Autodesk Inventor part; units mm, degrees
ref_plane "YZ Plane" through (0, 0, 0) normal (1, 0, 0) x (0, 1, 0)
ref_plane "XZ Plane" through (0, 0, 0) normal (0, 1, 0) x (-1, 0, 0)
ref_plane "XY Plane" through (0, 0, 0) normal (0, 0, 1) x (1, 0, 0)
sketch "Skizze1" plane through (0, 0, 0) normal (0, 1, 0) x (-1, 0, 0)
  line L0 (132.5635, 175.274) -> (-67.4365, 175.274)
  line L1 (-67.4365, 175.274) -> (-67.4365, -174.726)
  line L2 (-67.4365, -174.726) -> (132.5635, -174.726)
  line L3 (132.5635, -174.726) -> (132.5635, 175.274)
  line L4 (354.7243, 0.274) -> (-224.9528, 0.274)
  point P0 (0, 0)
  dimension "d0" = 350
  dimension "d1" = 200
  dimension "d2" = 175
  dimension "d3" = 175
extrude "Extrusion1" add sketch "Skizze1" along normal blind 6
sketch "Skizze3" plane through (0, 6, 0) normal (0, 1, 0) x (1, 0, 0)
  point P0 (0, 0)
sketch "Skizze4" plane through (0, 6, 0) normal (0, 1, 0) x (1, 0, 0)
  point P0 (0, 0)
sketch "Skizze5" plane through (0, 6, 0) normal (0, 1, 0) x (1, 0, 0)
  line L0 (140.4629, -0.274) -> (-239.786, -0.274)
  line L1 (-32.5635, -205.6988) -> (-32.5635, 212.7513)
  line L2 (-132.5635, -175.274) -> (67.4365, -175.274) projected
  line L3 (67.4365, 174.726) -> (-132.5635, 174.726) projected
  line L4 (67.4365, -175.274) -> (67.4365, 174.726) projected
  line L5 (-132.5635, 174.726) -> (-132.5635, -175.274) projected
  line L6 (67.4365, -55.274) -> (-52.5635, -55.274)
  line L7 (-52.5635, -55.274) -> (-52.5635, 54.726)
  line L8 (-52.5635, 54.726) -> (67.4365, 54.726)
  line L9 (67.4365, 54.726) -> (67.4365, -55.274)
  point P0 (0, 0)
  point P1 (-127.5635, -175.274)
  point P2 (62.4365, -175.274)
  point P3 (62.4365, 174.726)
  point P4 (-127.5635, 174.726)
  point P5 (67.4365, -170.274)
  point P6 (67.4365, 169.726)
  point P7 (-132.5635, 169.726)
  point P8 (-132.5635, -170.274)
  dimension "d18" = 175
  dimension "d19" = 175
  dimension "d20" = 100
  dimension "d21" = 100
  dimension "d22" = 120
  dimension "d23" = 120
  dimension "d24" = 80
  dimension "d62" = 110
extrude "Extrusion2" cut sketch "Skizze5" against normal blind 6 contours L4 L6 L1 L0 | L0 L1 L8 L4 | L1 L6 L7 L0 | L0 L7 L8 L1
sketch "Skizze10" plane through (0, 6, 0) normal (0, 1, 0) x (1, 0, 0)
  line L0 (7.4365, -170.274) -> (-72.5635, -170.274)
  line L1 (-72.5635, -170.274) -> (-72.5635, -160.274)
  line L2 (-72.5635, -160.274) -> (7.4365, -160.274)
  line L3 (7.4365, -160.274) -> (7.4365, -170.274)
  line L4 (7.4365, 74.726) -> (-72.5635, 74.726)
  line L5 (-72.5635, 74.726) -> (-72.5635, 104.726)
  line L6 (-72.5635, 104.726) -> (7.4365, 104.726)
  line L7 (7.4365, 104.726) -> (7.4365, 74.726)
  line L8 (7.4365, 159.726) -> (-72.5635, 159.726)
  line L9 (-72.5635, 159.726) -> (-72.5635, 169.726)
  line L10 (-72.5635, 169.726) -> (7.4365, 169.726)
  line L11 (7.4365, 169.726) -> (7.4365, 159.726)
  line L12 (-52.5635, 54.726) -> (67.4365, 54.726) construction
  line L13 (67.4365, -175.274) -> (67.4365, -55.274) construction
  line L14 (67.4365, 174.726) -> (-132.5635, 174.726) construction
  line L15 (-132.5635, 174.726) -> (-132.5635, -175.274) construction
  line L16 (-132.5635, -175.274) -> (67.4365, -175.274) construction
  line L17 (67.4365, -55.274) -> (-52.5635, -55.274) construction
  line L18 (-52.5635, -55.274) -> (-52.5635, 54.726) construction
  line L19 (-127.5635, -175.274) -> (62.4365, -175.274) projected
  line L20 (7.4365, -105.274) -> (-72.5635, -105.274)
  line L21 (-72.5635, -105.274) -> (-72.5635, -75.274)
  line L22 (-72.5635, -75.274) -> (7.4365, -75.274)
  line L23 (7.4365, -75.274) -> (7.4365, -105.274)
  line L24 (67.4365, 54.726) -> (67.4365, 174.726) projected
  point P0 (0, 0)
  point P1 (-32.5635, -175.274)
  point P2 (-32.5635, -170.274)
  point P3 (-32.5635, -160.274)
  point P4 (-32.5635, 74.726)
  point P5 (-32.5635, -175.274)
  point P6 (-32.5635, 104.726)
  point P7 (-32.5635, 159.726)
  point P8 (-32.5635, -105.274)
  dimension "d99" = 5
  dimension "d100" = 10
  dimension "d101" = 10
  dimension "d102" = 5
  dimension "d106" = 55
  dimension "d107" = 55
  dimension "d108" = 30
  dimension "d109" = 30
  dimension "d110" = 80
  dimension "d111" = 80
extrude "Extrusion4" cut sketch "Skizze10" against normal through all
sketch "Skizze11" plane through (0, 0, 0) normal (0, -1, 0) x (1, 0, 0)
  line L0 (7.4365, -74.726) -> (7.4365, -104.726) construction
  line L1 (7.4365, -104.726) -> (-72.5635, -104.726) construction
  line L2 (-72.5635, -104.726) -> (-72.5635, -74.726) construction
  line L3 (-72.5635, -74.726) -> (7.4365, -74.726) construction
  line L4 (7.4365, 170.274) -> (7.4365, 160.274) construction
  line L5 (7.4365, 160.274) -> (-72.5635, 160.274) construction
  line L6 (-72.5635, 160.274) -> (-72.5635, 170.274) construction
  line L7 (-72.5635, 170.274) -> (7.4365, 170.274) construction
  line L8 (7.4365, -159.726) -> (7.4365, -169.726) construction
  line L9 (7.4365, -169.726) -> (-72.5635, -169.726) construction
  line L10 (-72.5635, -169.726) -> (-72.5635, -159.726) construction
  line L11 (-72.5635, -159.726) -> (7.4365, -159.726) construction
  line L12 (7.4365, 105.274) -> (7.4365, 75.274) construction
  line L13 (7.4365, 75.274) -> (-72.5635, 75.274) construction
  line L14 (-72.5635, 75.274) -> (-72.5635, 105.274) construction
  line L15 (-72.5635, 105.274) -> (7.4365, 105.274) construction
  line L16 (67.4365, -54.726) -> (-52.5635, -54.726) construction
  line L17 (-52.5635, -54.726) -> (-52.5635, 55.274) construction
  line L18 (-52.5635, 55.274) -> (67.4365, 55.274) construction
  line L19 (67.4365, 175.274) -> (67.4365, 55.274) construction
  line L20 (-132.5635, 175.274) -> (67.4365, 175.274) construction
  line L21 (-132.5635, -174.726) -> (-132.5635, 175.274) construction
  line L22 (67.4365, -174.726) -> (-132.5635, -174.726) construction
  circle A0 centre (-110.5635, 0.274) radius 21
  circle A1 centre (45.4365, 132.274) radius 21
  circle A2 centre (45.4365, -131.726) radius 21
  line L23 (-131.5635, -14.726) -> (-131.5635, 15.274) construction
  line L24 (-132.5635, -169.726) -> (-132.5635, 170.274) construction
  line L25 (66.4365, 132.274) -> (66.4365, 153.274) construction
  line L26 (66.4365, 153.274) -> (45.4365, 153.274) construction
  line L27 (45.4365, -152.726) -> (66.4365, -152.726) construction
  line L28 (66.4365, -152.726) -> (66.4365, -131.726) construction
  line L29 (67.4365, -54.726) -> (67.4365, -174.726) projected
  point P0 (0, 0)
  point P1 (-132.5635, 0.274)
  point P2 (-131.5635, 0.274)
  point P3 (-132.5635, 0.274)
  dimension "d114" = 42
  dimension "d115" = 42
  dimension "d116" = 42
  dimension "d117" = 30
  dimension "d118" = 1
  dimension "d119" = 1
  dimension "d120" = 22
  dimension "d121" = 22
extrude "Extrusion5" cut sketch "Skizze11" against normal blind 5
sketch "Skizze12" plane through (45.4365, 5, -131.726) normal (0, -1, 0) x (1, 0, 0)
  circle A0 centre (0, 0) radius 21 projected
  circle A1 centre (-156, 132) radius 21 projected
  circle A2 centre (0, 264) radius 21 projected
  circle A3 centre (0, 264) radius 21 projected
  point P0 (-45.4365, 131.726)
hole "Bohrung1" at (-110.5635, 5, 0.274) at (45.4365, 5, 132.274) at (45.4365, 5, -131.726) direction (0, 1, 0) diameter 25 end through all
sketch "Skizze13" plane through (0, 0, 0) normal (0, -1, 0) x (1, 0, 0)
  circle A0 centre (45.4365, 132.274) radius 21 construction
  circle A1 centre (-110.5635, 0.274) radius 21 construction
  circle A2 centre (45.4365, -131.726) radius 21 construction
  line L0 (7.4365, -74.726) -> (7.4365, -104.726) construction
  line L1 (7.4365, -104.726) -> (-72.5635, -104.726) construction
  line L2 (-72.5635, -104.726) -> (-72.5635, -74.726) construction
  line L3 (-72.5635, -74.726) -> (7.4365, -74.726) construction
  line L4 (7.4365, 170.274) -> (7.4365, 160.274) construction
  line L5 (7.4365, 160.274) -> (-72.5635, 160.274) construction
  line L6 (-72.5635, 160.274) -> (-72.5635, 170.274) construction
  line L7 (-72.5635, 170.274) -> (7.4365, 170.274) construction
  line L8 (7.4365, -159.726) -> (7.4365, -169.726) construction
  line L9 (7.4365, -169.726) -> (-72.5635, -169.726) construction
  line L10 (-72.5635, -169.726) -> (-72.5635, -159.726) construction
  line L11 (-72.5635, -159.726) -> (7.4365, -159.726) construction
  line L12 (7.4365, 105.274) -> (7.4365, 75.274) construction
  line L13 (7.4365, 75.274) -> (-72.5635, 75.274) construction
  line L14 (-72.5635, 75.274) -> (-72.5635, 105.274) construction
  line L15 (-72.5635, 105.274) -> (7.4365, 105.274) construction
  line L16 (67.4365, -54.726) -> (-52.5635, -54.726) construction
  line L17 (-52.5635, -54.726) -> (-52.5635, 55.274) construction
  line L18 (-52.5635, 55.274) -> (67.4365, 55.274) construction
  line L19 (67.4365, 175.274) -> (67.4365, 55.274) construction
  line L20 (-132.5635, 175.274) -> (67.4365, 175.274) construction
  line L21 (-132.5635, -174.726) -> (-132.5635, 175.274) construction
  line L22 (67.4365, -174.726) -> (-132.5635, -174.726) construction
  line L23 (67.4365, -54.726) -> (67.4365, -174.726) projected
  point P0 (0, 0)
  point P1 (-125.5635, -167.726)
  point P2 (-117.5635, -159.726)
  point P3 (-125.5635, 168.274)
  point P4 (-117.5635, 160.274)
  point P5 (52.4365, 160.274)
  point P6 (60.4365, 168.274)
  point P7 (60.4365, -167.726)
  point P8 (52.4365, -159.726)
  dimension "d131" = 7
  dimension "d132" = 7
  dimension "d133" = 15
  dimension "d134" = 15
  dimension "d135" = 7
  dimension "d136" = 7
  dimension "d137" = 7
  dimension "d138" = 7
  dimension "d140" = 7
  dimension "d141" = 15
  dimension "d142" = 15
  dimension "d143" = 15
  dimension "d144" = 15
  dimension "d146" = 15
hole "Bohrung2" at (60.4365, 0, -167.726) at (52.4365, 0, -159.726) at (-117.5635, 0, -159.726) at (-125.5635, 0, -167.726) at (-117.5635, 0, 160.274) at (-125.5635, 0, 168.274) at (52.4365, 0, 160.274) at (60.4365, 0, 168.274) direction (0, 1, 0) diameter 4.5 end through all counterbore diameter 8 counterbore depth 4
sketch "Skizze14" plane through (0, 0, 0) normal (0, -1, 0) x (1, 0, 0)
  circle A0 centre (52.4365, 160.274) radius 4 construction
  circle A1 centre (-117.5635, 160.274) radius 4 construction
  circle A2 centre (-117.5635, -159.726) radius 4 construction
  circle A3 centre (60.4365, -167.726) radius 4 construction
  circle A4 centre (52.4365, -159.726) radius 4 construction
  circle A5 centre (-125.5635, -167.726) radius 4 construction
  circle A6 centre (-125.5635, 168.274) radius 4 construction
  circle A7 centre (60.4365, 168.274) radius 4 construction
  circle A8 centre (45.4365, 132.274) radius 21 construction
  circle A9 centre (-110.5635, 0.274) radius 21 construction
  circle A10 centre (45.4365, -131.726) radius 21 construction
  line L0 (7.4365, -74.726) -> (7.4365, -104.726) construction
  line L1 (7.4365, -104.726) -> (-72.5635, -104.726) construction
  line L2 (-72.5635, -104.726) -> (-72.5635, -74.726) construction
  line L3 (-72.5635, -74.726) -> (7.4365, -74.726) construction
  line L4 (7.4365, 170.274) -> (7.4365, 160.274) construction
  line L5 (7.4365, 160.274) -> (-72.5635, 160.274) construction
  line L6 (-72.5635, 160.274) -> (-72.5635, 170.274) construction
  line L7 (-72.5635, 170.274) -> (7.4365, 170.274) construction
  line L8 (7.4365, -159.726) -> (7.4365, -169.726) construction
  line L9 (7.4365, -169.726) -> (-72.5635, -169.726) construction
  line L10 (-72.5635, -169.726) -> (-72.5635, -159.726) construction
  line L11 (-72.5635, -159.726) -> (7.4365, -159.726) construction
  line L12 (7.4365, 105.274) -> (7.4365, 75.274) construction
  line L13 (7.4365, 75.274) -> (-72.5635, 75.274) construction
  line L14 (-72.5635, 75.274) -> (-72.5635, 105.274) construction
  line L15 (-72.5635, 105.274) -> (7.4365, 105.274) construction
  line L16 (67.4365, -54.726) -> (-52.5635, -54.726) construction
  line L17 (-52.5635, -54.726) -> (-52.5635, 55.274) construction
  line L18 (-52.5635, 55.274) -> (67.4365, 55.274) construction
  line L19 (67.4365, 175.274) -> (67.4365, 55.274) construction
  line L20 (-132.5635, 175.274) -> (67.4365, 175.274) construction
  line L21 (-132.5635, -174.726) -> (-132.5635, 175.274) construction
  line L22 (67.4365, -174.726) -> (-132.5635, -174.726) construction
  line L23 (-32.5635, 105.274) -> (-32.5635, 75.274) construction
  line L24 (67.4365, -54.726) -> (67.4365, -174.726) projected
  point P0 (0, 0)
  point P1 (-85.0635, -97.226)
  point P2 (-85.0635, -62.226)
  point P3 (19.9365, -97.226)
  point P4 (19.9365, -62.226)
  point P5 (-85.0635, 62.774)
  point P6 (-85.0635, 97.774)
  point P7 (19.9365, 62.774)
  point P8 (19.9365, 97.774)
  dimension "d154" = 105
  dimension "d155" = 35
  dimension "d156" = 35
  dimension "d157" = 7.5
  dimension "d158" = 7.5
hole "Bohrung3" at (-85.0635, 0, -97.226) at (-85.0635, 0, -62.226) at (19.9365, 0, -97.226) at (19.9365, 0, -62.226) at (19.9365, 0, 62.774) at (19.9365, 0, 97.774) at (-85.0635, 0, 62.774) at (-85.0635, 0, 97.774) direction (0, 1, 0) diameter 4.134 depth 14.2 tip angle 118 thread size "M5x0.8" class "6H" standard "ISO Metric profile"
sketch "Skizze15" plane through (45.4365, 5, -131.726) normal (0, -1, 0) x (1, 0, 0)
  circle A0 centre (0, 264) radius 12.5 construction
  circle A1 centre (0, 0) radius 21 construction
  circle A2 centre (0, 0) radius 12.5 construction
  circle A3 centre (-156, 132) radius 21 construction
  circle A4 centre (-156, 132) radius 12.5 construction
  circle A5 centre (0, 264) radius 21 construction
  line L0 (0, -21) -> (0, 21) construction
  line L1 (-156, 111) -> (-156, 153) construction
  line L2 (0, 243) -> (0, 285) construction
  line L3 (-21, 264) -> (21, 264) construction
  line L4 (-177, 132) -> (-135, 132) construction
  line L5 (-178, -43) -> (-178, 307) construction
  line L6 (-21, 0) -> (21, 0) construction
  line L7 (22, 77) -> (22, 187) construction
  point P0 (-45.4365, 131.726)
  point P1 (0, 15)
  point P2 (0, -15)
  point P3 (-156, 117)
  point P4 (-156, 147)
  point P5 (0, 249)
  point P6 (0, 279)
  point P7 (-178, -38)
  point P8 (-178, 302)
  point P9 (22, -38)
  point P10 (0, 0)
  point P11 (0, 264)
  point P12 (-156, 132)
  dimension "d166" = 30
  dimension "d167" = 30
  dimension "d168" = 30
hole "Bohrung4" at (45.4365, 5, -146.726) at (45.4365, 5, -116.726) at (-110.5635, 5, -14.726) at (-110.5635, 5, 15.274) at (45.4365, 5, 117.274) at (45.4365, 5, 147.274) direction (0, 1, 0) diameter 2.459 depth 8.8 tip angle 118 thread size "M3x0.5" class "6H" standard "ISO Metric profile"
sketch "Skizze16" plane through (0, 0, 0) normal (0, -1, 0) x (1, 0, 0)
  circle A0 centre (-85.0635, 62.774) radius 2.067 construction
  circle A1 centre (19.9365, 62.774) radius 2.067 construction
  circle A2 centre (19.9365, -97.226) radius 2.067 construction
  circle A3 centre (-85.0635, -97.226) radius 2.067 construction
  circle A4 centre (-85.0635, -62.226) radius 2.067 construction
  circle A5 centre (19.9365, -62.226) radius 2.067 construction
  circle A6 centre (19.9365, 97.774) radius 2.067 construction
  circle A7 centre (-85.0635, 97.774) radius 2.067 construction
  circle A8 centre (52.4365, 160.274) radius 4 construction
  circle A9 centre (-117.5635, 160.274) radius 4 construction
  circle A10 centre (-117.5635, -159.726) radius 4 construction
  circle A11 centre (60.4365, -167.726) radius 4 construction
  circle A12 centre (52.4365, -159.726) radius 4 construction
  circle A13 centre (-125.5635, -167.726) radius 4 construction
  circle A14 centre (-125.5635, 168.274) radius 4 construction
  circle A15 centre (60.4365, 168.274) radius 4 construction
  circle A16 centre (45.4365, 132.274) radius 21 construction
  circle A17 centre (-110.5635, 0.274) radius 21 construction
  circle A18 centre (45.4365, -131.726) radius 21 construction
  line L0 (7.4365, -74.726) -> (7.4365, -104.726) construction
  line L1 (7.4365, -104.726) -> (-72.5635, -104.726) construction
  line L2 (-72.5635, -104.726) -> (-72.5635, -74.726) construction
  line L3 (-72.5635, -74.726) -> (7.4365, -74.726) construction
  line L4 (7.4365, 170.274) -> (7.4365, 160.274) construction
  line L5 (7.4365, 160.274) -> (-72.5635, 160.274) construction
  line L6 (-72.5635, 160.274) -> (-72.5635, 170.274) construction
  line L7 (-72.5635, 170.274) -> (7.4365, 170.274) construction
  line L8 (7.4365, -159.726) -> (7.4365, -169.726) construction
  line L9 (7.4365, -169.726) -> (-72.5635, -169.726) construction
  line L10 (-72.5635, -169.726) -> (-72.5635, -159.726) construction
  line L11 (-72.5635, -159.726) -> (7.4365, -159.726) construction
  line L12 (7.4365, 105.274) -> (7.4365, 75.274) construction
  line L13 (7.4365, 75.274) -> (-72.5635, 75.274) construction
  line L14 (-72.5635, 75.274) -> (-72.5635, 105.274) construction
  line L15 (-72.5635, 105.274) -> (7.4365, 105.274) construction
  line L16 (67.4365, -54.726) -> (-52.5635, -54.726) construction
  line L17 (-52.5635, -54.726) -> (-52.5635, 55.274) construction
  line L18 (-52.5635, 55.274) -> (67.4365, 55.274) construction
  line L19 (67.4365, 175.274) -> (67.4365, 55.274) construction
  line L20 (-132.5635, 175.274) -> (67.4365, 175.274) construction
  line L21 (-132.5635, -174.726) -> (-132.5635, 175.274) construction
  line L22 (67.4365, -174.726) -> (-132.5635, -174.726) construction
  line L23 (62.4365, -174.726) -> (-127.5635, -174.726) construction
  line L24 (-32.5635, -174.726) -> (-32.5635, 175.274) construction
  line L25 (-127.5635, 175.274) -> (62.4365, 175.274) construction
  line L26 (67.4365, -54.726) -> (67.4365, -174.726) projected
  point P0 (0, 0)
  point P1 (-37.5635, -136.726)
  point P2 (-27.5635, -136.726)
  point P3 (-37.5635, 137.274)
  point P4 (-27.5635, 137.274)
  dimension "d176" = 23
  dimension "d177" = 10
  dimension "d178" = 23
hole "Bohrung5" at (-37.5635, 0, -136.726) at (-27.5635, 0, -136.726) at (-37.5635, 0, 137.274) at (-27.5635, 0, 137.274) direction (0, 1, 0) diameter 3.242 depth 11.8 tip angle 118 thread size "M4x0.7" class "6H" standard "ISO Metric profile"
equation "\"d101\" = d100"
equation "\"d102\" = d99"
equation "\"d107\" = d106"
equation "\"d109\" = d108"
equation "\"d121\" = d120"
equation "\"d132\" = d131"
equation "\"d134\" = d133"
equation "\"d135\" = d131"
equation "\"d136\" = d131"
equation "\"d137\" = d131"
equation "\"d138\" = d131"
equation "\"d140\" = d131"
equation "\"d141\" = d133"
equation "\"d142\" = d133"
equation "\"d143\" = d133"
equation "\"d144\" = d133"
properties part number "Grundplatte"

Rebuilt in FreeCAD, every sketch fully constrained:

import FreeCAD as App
import Part
import Sketcher

V = App.Vector
Q = App.Units.Quantity

doc = App.newDocument("Part")
body = doc.addObject("PartDesign::Body", "Body")

sketch1 = body.newObject("Sketcher::SketchObject", "Sketch")
sketch1.AttachmentSupport = (doc.getObject("XZ_Plane"), [""])
sketch1.MapMode = "FlatFace"
sketch1.addGeometry([
    Part.LineSegment(V(-132.5635, 175.274, 0), V(67.4365, 175.274, 0)),
    Part.LineSegment(V(67.4365, 175.274, 0), V(67.4365, -174.726, 0)),
    Part.LineSegment(V(67.4365, -174.726, 0), V(-132.5635, -174.726, 0)),
    Part.LineSegment(V(-132.5635, -174.726, 0), V(-132.5635, 175.274, 0)),
], False)
sketch1.addConstraint([
    Sketcher.Constraint("Coincident", 0, 2, 1, 1),
    Sketcher.Constraint("Coincident", 1, 2, 2, 1),
    Sketcher.Constraint("Coincident", 2, 2, 3, 1),
    Sketcher.Constraint("Coincident", 3, 2, 0, 1),
    Sketcher.Constraint("Horizontal", 0),
    Sketcher.Constraint("Vertical", 1),
    Sketcher.Constraint("Horizontal", 2),
    Sketcher.Constraint("Vertical", 3),
    Sketcher.Constraint("DistanceX", 0, 1, 0, 2, Q("200 mm")),
    Sketcher.Constraint("DistanceY", 1, 2, 1, 1, Q("350 mm")),
    Sketcher.Constraint("DistanceY", -1, 1, 0, 2, Q("175.274 mm")),
    Sketcher.Constraint("DistanceX", -1, 1, 0, 2, Q("67.4365 mm")),
])
pad1 = body.newObject("PartDesign::Pad", "Pad")
pad1.Profile = sketch1
pad1.Length = 6
pad1.Reversed = True

sketch2 = body.newObject("Sketcher::SketchObject", "Sketch001")
sketch2.AttachmentSupport = (doc.getObject("XZ_Plane"), [""])
sketch2.MapMode = "FlatFace"
sketch2.AttachmentOffset = App.Placement(V(0, 0, -6), App.Rotation())
sketch2.addGeometry([
    Part.LineSegment(V(67.4365, 55.274, 0), V(67.4365, -54.726, 0)),
    Part.LineSegment(V(67.4365, -54.726, 0), V(-52.5635, -54.726, 0)),
    Part.LineSegment(V(-52.5635, -54.726, 0), V(-52.5635, 55.274, 0)),
    Part.LineSegment(V(-52.5635, 55.274, 0), V(67.4365, 55.274, 0)),
], False)
sketch2.addConstraint([
    Sketcher.Constraint("Coincident", 0, 2, 1, 1),
    Sketcher.Constraint("Coincident", 1, 2, 2, 1),
    Sketcher.Constraint("Coincident", 2, 2, 3, 1),
    Sketcher.Constraint("Coincident", 3, 2, 0, 1),
    Sketcher.Constraint("Vertical", 0),
    Sketcher.Constraint("Horizontal", 1),
    Sketcher.Constraint("Vertical", 2),
    Sketcher.Constraint("Horizontal", 3),
    Sketcher.Constraint("DistanceX", 1, 2, 1, 1, Q("120 mm")),
    Sketcher.Constraint("DistanceY", 0, 2, 0, 1, Q("110 mm")),
    Sketcher.Constraint("DistanceY", 0, 2, -1, 1, Q("54.726 mm")),
    Sketcher.Constraint("DistanceX", -1, 1, 0, 2, Q("67.4365 mm")),
])
pocket1 = body.newObject("PartDesign::Pocket", "Pocket")
pocket1.Profile = sketch2
pocket1.Length = 6
pocket1.Reversed = True

sketch3 = body.newObject("Sketcher::SketchObject", "Sketch002")
sketch3.AttachmentSupport = (doc.getObject("XZ_Plane"), [""])
sketch3.MapMode = "FlatFace"
sketch3.AttachmentOffset = App.Placement(V(0, 0, -6), App.Rotation())
sketch3.addGeometry([
    Part.LineSegment(V(-72.5635, 170.274, 0), V(7.4365, 170.274, 0)),
    Part.LineSegment(V(7.4365, 170.274, 0), V(7.4365, 160.274, 0)),
    Part.LineSegment(V(7.4365, 160.274, 0), V(-72.5635, 160.274, 0)),
    Part.LineSegment(V(-72.5635, 160.274, 0), V(-72.5635, 170.274, 0)),
    Part.LineSegment(V(-72.5635, -74.726, 0), V(7.4365, -74.726, 0)),
    Part.LineSegment(V(7.4365, -74.726, 0), V(7.4365, -104.726, 0)),
    Part.LineSegment(V(7.4365, -104.726, 0), V(-72.5635, -104.726, 0)),
    Part.LineSegment(V(-72.5635, -104.726, 0), V(-72.5635, -74.726, 0)),
    Part.LineSegment(V(-72.5635, -159.726, 0), V(7.4365, -159.726, 0)),
    Part.LineSegment(V(7.4365, -159.726, 0), V(7.4365, -169.726, 0)),
    Part.LineSegment(V(7.4365, -169.726, 0), V(-72.5635, -169.726, 0)),
    Part.LineSegment(V(-72.5635, -169.726, 0), V(-72.5635, -159.726, 0)),
    Part.LineSegment(V(-72.5635, 105.274, 0), V(7.4365, 105.274, 0)),
    Part.LineSegment(V(7.4365, 105.274, 0), V(7.4365, 75.274, 0)),
    Part.LineSegment(V(7.4365, 75.274, 0), V(-72.5635, 75.274, 0)),
    Part.LineSegment(V(-72.5635, 75.274, 0), V(-72.5635, 105.274, 0)),
], False)
sketch3.addConstraint([
    Sketcher.Constraint("Coincident", 0, 2, 1, 1),
    Sketcher.Constraint("Coincident", 1, 2, 2, 1),
    Sketcher.Constraint("Coincident", 2, 2, 3, 1),
    Sketcher.Constraint("Coincident", 3, 2, 0, 1),
    Sketcher.Constraint("Coincident", 4, 2, 5, 1),
    Sketcher.Constraint("Coincident", 5, 2, 6, 1),
    Sketcher.Constraint("Coincident", 6, 2, 7, 1),
    Sketcher.Constraint("Coincident", 7, 2, 4, 1),
    Sketcher.Constraint("Coincident", 8, 2, 9, 1),
    Sketcher.Constraint("Coincident", 9, 2, 10, 1),
    Sketcher.Constraint("Coincident", 10, 2, 11, 1),
    Sketcher.Constraint("Coincident", 11, 2, 8, 1),
    Sketcher.Constraint("Coincident", 12, 2, 13, 1),
    Sketcher.Constraint("Coincident", 13, 2, 14, 1),
    Sketcher.Constraint("Coincident", 14, 2, 15, 1),
    Sketcher.Constraint("Coincident", 15, 2, 12, 1),
    Sketcher.Constraint("Horizontal", 0),
    Sketcher.Constraint("Vertical", 1),
    Sketcher.Constraint("Horizontal", 2),
    Sketcher.Constraint("Vertical", 3),
    Sketcher.Constraint("Horizontal", 4),
    Sketcher.Constraint("Vertical", 5),
    Sketcher.Constraint("Horizontal", 6),
    Sketcher.Constraint("Vertical", 7),
    Sketcher.Constraint("Horizontal", 8),
    Sketcher.Constraint("Vertical", 9),
    Sketcher.Constraint("Horizontal", 10),
    Sketcher.Constraint("Vertical", 11),
    Sketcher.Constraint("Horizontal", 12),
    Sketcher.Constraint("Vertical", 13),
    Sketcher.Constraint("Horizontal", 14),
    Sketcher.Constraint("Vertical", 15),
    Sketcher.Constraint("Vertical", 1, 2, 4, 2),
    Sketcher.Constraint("Vertical", 3, 2, 6, 2),
    Sketcher.Constraint("Vertical", 5, 2, 8, 2),
    Sketcher.Constraint("Vertical", 7, 2, 10, 2),
    Sketcher.Constraint("Vertical", 9, 2, 12, 2),
    Sketcher.Constraint("Vertical", 11, 2, 14, 2),
    Sketcher.Constraint("Equal", 3, 9),
    Sketcher.Constraint("Equal", 7, 13),
    Sketcher.Constraint("DistanceX", 0, 1, 0, 2, Q("80 mm")),
    Sketcher.Constraint("DistanceY", 1, 2, 1, 1, Q("10 mm")),
    Sketcher.Constraint("DistanceY", 5, 2, 5, 1, Q("30 mm")),
    Sketcher.Constraint("DistanceY", 8, 2, 5, 2, Q("55 mm")),
    Sketcher.Constraint("DistanceY", 12, 2, 1, 2, Q("55 mm")),
    Sketcher.Constraint("DistanceY", 4, 2, 1, 2, Q("235 mm")),
    Sketcher.Constraint("DistanceY", -1, 1, 0, 2, Q("170.274 mm")),
    Sketcher.Constraint("DistanceX", -1, 1, 0, 2, Q("7.4365 mm")),
])
pocket2 = body.newObject("PartDesign::Pocket", "Pocket001")
pocket2.Profile = sketch3
pocket2.Type = "ThroughAll"
pocket2.Reversed = True

sketch4 = body.newObject("Sketcher::SketchObject", "Sketch003")
sketch4.AttachmentSupport = (doc.getObject("XZ_Plane"), [""])
sketch4.MapMode = "FlatFace"
sketch4.addGeometry([
    Part.Circle(V(-110.5635, 0.274, 0), V(0, 0, 1), 21),
    Part.Circle(V(45.4365, 132.274, 0), V(0, 0, 1), 21),
    Part.Circle(V(45.4365, -131.726, 0), V(0, 0, 1), 21),
], False)
sketch4.addConstraint([
    Sketcher.Constraint("Equal", 0, 1),
    Sketcher.Constraint("Equal", 1, 2),
    Sketcher.Constraint("Vertical", 1, 3, 2, 3),
    Sketcher.Constraint("Diameter", 0, Q("42 mm")),
    Sketcher.Constraint("DistanceX", 0, 3, 1, 3, Q("156 mm")),
    Sketcher.Constraint("DistanceY", 0, 3, 1, 3, Q("132 mm")),
    Sketcher.Constraint("DistanceY", 2, 3, 0, 3, Q("132 mm")),
    Sketcher.Constraint("DistanceY", -1, 1, 0, 3, Q("0.274 mm")),
    Sketcher.Constraint("DistanceX", 0, 3, -1, 1, Q("110.5635 mm")),
])
pocket3 = body.newObject("PartDesign::Pocket", "Pocket002")
pocket3.Profile = sketch4
pocket3.Length = 5

sketch5 = body.newObject("Sketcher::SketchObject", "Sketch004")
sketch5.AttachmentSupport = (doc.getObject("XZ_Plane"), [""])
sketch5.MapMode = "FlatFace"
sketch5.AttachmentOffset = App.Placement(V(0, 0, -5), App.Rotation())
sketch5.addGeometry([
    Part.Circle(V(-110.5635, 0.274, 0), V(0, 0, 1), 12.5),
    Part.Circle(V(45.4365, 132.274, 0), V(0, 0, 1), 12.5),
    Part.Circle(V(45.4365, -131.726, 0), V(0, 0, 1), 12.5),
], False)
sketch5.addConstraint([
    Sketcher.Constraint("Equal", 0, 1),
    Sketcher.Constraint("Equal", 1, 2),
    Sketcher.Constraint("Vertical", 1, 3, 2, 3),
    Sketcher.Constraint("Diameter", 0, Q("25 mm")),
    Sketcher.Constraint("DistanceX", 0, 3, 1, 3, Q("156 mm")),
    Sketcher.Constraint("DistanceY", 0, 3, 1, 3, Q("132 mm")),
    Sketcher.Constraint("DistanceY", 2, 3, 0, 3, Q("132 mm")),
    Sketcher.Constraint("DistanceY", -1, 1, 0, 3, Q("0.274 mm")),
    Sketcher.Constraint("DistanceX", 0, 3, -1, 1, Q("110.5635 mm")),
])
doc.recompute()
hole = body.newObject("PartDesign::Hole", "Hole")
hole.Profile = sketch5
hole.ThreadType = "None"
hole.Diameter = 25
hole.DepthType = "ThroughAll"

sketch6 = body.newObject("Sketcher::SketchObject", "Sketch005")
sketch6.AttachmentSupport = (doc.getObject("XZ_Plane"), [""])
sketch6.MapMode = "FlatFace"
sketch6.addGeometry([
    Part.Circle(V(60.4365, -167.726, 0), V(0, 0, 1), 2.25),
    Part.Circle(V(52.4365, -159.726, 0), V(0, 0, 1), 2.25),
    Part.Circle(V(-117.5635, -159.726, 0), V(0, 0, 1), 2.25),
    Part.Circle(V(-125.5635, -167.726, 0), V(0, 0, 1), 2.25),
    Part.Circle(V(-117.5635, 160.274, 0), V(0, 0, 1), 2.25),
    Part.Circle(V(-125.5635, 168.274, 0), V(0, 0, 1), 2.25),
    Part.Circle(V(52.4365, 160.274, 0), V(0, 0, 1), 2.25),
    Part.Circle(V(60.4365, 168.274, 0), V(0, 0, 1), 2.25),
], False)
sketch6.addConstraint([
    Sketcher.Constraint("Equal", 0, 1),
    Sketcher.Constraint("Equal", 1, 2),
    Sketcher.Constraint("Equal", 2, 3),
    Sketcher.Constraint("Equal", 3, 4),
    Sketcher.Constraint("Equal", 4, 5),
    Sketcher.Constraint("Equal", 5, 6),
    Sketcher.Constraint("Equal", 6, 7),
    Sketcher.Constraint("Horizontal", 1, 3, 2, 3),
    Sketcher.Constraint("Horizontal", 0, 3, 3, 3),
    Sketcher.Constraint("Horizontal", 4, 3, 6, 3),
    Sketcher.Constraint("Horizontal", 5, 3, 7, 3),
    Sketcher.Constraint("Vertical", 2, 3, 4, 3),
    Sketcher.Constraint("Vertical", 3, 3, 5, 3),
    Sketcher.Constraint("Vertical", 1, 3, 6, 3),
    Sketcher.Constraint("Vertical", 0, 3, 7, 3),
    Sketcher.Constraint("Diameter", 0, Q("4.5 mm")),
    Sketcher.Constraint("DistanceX", 1, 3, 0, 3, Q("8 mm")),
    Sketcher.Constraint("DistanceY", 0, 3, 1, 3, Q("8 mm")),
    Sketcher.Constraint("DistanceX", 2, 3, 1, 3, Q("170 mm")),
    Sketcher.Constraint("DistanceX", 3, 3, 2, 3, Q("8 mm")),
    Sketcher.Constraint("DistanceY", 2, 3, 4, 3, Q("320 mm")),
    Sketcher.Constraint("DistanceY", 4, 3, 5, 3, Q("8 mm")),
    Sketcher.Constraint("DistanceY", 0, 3, -1, 1, Q("167.726 mm")),
    Sketcher.Constraint("DistanceX", -1, 1, 0, 3, Q("60.4365 mm")),
])
doc.recompute()
hole2 = body.newObject("PartDesign::Hole", "Hole001")
hole2.Profile = sketch6
hole2.ThreadType = "None"
hole2.Diameter = 4.5
hole2.DepthType = "ThroughAll"
hole2.HoleCutType = "Counterbore"
hole2.HoleCutDiameter = 8
hole2.HoleCutDepth = 4

sketch7 = body.newObject("Sketcher::SketchObject", "Sketch006")
sketch7.AttachmentSupport = (doc.getObject("XZ_Plane"), [""])
sketch7.MapMode = "FlatFace"
sketch7.addGeometry([
    Part.Circle(V(-85.0635, -97.226, 0), V(0, 0, 1), 2.067),
    Part.Circle(V(-85.0635, -62.226, 0), V(0, 0, 1), 2.067),
    Part.Circle(V(19.9365, -97.226, 0), V(0, 0, 1), 2.067),
    Part.Circle(V(19.9365, -62.226, 0), V(0, 0, 1), 2.067),
    Part.Circle(V(19.9365, 62.774, 0), V(0, 0, 1), 2.067),
    Part.Circle(V(19.9365, 97.774, 0), V(0, 0, 1), 2.067),
    Part.Circle(V(-85.0635, 62.774, 0), V(0, 0, 1), 2.067),
    Part.Circle(V(-85.0635, 97.774, 0), V(0, 0, 1), 2.067),
], False)
sketch7.addConstraint([
    Sketcher.Constraint("Equal", 0, 1),
    Sketcher.Constraint("Equal", 1, 2),
    Sketcher.Constraint("Equal", 2, 3),
    Sketcher.Constraint("Equal", 3, 4),
    Sketcher.Constraint("Equal", 4, 5),
    Sketcher.Constraint("Equal", 5, 6),
    Sketcher.Constraint("Equal", 6, 7),
    Sketcher.Constraint("Horizontal", 0, 3, 2, 3),
    Sketcher.Constraint("Horizontal", 1, 3, 3, 3),
    Sketcher.Constraint("Horizontal", 4, 3, 6, 3),
    Sketcher.Constraint("Horizontal", 5, 3, 7, 3),
    Sketcher.Constraint("Vertical", 0, 3, 1, 3),
    Sketcher.Constraint("Vertical", 2, 3, 3, 3),
    Sketcher.Constraint("Vertical", 3, 3, 4, 3),
    Sketcher.Constraint("Vertical", 4, 3, 5, 3),
    Sketcher.Constraint("Vertical", 1, 3, 6, 3),
    Sketcher.Constraint("Vertical", 6, 3, 7, 3),
    Sketcher.Constraint("Diameter", 0, Q("4.134 mm")),
    Sketcher.Constraint("DistanceY", 0, 3, 1, 3, Q("35 mm")),
    Sketcher.Constraint("DistanceX", 0, 3, 2, 3, Q("105 mm")),
    Sketcher.Constraint("DistanceY", 3, 3, 4, 3, Q("125 mm")),
    Sketcher.Constraint("DistanceY", 4, 3, 5, 3, Q("35 mm")),
    Sketcher.Constraint("DistanceY", 0, 3, -1, 1, Q("97.226 mm")),
    Sketcher.Constraint("DistanceX", 0, 3, -1, 1, Q("85.0635 mm")),
])
doc.recompute()
hole3 = body.newObject("PartDesign::Hole", "Hole002")
hole3.Profile = sketch7
hole3.ThreadType = "None"
hole3.Diameter = 4.134
hole3.DepthType = "Dimension"
hole3.Depth = 14.2
hole3.DrillPoint = "Angled"
hole3.DrillPointAngle = 118

sketch8 = body.newObject("Sketcher::SketchObject", "Sketch007")
sketch8.AttachmentSupport = (doc.getObject("XZ_Plane"), [""])
sketch8.MapMode = "FlatFace"
sketch8.AttachmentOffset = App.Placement(V(0, 0, -5), App.Rotation())
sketch8.addGeometry([
    Part.Circle(V(45.4365, -146.726, 0), V(0, 0, 1), 1.2295),
    Part.Circle(V(45.4365, -116.726, 0), V(0, 0, 1), 1.2295),
    Part.Circle(V(-110.5635, -14.726, 0), V(0, 0, 1), 1.2295),
    Part.Circle(V(-110.5635, 15.274, 0), V(0, 0, 1), 1.2295),
    Part.Circle(V(45.4365, 117.274, 0), V(0, 0, 1), 1.2295),
    Part.Circle(V(45.4365, 147.274, 0), V(0, 0, 1), 1.2295),
], False)
sketch8.addConstraint([
    Sketcher.Constraint("Equal", 0, 1),
    Sketcher.Constraint("Equal", 1, 2),
    Sketcher.Constraint("Equal", 2, 3),
    Sketcher.Constraint("Equal", 3, 4),
    Sketcher.Constraint("Equal", 4, 5),
    Sketcher.Constraint("Vertical", 0, 3, 1, 3),
    Sketcher.Constraint("Vertical", 2, 3, 3, 3),
    Sketcher.Constraint("Vertical", 1, 3, 4, 3),
    Sketcher.Constraint("Vertical", 4, 3, 5, 3),
    Sketcher.Constraint("Diameter", 0, Q("2.459 mm")),
    Sketcher.Constraint("DistanceY", 0, 3, 1, 3, Q("30 mm")),
    Sketcher.Constraint("DistanceX", 2, 3, 1, 3, Q("156 mm")),
    Sketcher.Constraint("DistanceY", 1, 3, 2, 3, Q("102 mm")),
    Sketcher.Constraint("DistanceY", 2, 3, 3, 3, Q("30 mm")),
    Sketcher.Constraint("DistanceY", 3, 3, 4, 3, Q("102 mm")),
    Sketcher.Constraint("DistanceY", 4, 3, 5, 3, Q("30 mm")),
    Sketcher.Constraint("DistanceY", 0, 3, -1, 1, Q("146.726 mm")),
    Sketcher.Constraint("DistanceX", -1, 1, 0, 3, Q("45.4365 mm")),
])
doc.recompute()
hole4 = body.newObject("PartDesign::Hole", "Hole003")
hole4.Profile = sketch8
hole4.ThreadType = "None"
hole4.Diameter = 2.459
hole4.DepthType = "Dimension"
hole4.Depth = 8.8
hole4.DrillPoint = "Angled"
hole4.DrillPointAngle = 118

sketch9 = body.newObject("Sketcher::SketchObject", "Sketch008")
sketch9.AttachmentSupport = (doc.getObject("XZ_Plane"), [""])
sketch9.MapMode = "FlatFace"
sketch9.addGeometry([
    Part.Circle(V(-37.5635, -136.726, 0), V(0, 0, 1), 1.621),
    Part.Circle(V(-27.5635, -136.726, 0), V(0, 0, 1), 1.621),
    Part.Circle(V(-37.5635, 137.274, 0), V(0, 0, 1), 1.621),
    Part.Circle(V(-27.5635, 137.274, 0), V(0, 0, 1), 1.621),
], False)
sketch9.addConstraint([
    Sketcher.Constraint("Equal", 0, 1),
    Sketcher.Constraint("Equal", 1, 2),
    Sketcher.Constraint("Equal", 2, 3),
    Sketcher.Constraint("Horizontal", 0, 3, 1, 3),
    Sketcher.Constraint("Horizontal", 2, 3, 3, 3),
    Sketcher.Constraint("Vertical", 0, 3, 2, 3),
    Sketcher.Constraint("Vertical", 1, 3, 3, 3),
    Sketcher.Constraint("Diameter", 0, Q("3.242 mm")),
    Sketcher.Constraint("DistanceX", 0, 3, 1, 3, Q("10 mm")),
    Sketcher.Constraint("DistanceY", 0, 3, 2, 3, Q("274 mm")),
    Sketcher.Constraint("DistanceY", 0, 3, -1, 1, Q("136.726 mm")),
    Sketcher.Constraint("DistanceX", 0, 3, -1, 1, Q("37.5635 mm")),
])
doc.recompute()
hole5 = body.newObject("PartDesign::Hole", "Hole004")
hole5.Profile = sketch9
hole5.ThreadType = "None"
hole5.Diameter = 3.242
hole5.DepthType = "Dimension"
hole5.Depth = 11.8
hole5.DrillPoint = "Angled"
hole5.DrillPointAngle = 118

doc.recompute()
